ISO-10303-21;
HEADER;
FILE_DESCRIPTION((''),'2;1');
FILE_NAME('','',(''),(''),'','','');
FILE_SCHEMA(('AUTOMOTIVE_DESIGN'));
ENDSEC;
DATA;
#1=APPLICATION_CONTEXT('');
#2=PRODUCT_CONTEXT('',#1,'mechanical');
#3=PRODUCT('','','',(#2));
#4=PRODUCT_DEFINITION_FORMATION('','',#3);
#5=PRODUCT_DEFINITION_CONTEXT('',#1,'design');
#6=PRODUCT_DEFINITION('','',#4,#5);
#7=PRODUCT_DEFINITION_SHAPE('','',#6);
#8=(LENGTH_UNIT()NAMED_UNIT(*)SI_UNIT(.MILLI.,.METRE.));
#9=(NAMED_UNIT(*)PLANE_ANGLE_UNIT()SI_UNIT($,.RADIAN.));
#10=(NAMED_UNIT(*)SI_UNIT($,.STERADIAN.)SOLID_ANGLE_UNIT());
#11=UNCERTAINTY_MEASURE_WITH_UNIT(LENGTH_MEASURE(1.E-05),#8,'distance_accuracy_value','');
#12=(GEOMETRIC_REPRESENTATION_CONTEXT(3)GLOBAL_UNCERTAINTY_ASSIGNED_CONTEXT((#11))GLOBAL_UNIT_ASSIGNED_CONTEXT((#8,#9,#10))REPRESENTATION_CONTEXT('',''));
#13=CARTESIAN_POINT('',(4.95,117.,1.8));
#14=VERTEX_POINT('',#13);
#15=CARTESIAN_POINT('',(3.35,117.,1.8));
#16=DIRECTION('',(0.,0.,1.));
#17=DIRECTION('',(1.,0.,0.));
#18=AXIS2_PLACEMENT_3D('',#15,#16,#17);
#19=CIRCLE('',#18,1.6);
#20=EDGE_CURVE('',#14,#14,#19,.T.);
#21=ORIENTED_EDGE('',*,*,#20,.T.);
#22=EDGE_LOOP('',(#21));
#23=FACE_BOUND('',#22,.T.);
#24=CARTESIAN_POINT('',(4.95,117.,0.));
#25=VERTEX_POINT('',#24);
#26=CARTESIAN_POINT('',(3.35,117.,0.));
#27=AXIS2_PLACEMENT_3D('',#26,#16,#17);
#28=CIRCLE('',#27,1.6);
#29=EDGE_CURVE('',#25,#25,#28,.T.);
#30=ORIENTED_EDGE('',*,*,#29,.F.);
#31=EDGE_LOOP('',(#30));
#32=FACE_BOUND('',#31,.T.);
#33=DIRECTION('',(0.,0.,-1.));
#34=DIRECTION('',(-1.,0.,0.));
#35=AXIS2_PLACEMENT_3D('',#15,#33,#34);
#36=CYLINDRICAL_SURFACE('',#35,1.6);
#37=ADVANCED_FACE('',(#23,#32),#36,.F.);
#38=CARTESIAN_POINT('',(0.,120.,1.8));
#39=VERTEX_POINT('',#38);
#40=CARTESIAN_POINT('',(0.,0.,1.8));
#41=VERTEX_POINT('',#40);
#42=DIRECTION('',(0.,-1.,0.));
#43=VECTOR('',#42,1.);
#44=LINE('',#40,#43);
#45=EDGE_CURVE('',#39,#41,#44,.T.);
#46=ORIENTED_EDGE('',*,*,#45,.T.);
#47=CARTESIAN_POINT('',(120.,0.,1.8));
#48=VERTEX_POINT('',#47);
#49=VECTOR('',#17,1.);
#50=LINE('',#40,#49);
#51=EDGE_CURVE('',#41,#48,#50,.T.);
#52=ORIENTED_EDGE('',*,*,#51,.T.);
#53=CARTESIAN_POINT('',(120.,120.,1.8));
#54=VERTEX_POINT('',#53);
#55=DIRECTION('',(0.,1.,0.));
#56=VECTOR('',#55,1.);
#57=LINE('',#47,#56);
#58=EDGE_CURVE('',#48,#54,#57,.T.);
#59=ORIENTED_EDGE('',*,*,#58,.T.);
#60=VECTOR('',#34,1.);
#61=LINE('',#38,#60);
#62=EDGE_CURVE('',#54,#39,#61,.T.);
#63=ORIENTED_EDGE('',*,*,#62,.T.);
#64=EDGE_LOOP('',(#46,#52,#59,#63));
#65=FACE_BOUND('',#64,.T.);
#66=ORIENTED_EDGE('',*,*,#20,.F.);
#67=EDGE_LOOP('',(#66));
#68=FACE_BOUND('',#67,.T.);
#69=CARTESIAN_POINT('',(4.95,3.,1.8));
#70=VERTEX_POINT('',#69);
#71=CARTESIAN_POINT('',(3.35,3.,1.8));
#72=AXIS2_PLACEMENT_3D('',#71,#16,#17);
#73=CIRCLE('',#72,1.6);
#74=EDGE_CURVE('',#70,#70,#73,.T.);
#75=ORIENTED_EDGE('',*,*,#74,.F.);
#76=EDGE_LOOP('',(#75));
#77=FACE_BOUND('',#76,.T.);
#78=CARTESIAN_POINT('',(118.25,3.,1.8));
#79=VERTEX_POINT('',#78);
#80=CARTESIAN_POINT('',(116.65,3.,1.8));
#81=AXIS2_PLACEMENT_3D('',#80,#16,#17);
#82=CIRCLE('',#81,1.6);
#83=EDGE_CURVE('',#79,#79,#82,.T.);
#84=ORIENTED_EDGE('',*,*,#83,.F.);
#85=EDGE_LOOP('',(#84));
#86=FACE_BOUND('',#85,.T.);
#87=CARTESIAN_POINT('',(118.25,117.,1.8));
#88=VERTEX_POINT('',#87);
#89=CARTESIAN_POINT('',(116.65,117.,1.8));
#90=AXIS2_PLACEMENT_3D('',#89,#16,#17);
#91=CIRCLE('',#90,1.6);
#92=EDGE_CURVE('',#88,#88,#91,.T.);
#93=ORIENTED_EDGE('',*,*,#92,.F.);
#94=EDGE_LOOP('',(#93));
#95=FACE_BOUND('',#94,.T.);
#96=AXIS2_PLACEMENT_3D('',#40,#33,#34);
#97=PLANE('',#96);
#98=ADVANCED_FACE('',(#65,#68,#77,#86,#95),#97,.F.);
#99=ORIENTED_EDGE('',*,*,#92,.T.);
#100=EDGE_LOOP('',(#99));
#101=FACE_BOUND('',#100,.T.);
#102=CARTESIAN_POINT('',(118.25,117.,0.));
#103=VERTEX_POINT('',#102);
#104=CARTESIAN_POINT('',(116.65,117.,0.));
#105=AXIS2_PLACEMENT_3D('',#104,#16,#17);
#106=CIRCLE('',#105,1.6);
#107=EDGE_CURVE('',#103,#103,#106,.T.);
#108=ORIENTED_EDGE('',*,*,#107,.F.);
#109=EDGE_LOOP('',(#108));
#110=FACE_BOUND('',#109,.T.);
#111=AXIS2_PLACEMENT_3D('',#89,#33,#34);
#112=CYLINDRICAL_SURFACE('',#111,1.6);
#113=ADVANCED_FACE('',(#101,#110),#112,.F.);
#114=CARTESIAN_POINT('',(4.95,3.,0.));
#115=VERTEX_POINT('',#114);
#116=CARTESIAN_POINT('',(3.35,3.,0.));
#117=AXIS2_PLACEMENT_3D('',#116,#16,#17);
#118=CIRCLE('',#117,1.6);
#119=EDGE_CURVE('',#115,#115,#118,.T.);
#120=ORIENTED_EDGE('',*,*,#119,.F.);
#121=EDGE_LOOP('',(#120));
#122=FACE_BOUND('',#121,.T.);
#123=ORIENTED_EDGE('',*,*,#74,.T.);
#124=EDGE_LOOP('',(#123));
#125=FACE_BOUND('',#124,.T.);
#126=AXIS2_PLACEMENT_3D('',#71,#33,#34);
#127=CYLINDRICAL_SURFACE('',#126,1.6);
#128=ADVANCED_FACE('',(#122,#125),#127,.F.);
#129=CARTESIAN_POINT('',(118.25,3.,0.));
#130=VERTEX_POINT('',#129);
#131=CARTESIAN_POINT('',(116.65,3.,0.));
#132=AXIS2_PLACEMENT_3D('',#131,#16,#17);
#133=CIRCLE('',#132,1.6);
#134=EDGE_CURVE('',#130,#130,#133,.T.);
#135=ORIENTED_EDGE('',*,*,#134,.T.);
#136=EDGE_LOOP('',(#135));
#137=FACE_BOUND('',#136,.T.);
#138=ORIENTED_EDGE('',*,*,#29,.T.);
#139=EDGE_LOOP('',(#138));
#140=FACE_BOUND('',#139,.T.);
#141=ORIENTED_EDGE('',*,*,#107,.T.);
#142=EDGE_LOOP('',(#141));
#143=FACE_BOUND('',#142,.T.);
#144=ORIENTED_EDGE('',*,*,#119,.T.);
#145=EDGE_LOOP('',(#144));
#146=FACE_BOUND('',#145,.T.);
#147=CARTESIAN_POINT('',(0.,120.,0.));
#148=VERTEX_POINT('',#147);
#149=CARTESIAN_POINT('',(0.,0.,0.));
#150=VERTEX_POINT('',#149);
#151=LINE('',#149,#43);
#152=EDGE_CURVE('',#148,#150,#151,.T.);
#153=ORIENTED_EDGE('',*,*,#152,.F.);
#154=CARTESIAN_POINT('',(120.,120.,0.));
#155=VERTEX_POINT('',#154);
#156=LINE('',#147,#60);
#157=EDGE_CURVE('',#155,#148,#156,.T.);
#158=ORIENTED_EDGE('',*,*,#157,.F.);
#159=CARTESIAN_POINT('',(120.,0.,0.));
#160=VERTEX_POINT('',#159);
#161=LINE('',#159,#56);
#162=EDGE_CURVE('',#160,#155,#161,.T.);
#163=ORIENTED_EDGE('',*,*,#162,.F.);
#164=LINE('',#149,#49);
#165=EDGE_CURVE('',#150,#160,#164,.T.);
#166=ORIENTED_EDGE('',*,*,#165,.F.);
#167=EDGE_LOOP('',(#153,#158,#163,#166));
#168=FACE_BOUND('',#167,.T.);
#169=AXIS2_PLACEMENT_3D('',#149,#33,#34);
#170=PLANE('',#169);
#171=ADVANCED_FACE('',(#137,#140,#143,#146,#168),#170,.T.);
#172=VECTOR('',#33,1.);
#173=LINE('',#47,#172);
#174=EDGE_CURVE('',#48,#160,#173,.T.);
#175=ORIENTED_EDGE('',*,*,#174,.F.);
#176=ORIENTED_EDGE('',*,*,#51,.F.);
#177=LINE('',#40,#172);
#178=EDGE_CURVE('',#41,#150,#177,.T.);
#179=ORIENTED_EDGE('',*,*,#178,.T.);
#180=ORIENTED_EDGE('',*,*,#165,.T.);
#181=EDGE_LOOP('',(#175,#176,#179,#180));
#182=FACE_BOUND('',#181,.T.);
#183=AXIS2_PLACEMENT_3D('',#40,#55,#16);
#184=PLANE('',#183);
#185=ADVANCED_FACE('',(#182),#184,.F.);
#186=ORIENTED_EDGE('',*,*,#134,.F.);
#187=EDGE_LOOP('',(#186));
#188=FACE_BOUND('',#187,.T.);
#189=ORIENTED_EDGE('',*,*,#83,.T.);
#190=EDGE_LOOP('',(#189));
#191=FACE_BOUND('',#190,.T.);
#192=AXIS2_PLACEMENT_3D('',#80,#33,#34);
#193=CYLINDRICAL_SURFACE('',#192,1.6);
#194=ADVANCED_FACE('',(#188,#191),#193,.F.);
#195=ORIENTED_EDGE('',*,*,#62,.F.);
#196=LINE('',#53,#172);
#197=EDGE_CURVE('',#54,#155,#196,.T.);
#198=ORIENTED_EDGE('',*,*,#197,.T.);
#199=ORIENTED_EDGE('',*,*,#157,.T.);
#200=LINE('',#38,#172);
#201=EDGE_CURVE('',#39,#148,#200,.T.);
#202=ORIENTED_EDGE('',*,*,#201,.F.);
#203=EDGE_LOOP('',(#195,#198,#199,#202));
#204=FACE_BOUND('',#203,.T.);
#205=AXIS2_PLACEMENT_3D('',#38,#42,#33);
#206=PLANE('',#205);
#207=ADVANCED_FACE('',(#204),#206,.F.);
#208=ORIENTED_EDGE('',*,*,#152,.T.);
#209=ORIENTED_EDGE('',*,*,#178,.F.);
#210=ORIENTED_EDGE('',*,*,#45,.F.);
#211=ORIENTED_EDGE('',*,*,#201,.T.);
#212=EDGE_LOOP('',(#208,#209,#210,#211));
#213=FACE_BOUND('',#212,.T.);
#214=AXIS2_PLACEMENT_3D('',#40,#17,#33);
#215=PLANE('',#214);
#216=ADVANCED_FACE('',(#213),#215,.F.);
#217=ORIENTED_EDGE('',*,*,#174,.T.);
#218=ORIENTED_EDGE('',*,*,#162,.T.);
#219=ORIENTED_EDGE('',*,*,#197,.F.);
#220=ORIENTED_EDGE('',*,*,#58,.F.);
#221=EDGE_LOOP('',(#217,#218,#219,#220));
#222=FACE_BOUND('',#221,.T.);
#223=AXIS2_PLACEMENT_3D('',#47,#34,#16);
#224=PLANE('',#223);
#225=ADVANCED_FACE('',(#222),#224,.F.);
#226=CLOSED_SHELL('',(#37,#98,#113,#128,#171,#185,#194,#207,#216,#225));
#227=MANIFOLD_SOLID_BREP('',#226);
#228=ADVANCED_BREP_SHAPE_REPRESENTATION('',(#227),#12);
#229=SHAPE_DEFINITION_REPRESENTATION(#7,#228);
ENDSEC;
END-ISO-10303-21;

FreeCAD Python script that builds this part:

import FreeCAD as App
import Part
import Sketcher
from FreeCAD import Vector


def add_polygon(sketch, points):
    """Adds a closed chain of lines whose ends are joined by coincident constraints."""
    first, n = sketch.GeometryCount, len(points)
    for a, b in zip(points, points[1:] + points[:1]):
        sketch.addGeometry(Part.LineSegment(App.Vector(*a, 0), App.Vector(*b, 0)), False)
    for i in range(n):
        sketch.addConstraint(Sketcher.Constraint("Coincident", first + i, 2, first + (i + 1) % n, 1))

doc = App.newDocument("Part")
body = doc.addObject("PartDesign::Body", "Body")

# Sketch on XY plane
sketch1 = body.newObject("Sketcher::SketchObject", "Sketch")
sketch1.AttachmentSupport = (doc.getObject("XY_Plane"), [""])
sketch1.MapMode = "FlatFace"
add_polygon(sketch1, [(0, 120), (0, 0), (120, 0), (120, 120)])  # lines 0-3
sketch1.addGeometry(Part.Circle(Vector(3.35, 3, 0), Vector(0, 0, 1), 1.6), False)  # 4
sketch1.addGeometry(Part.Circle(Vector(116.65, 3, 0), Vector(0, 0, 1), 1.6), False)  # 5
sketch1.addGeometry(Part.Circle(Vector(3.35, 117, 0), Vector(0, 0, 1), 1.6), False)  # 6
sketch1.addGeometry(Part.Circle(Vector(116.65, 117, 0), Vector(0, 0, 1), 1.6), False)  # 7
sketch1.addConstraint([
    Sketcher.Constraint("Vertical", 0),
    Sketcher.Constraint("Horizontal", 1),
    Sketcher.Constraint("Vertical", 2),
    Sketcher.Constraint("Horizontal", 3),
    Sketcher.Constraint("Coincident", 0, 2, -1, 1),
    Sketcher.Constraint("Equal", 4, 5),
    Sketcher.Constraint("Equal", 5, 6),
    Sketcher.Constraint("Equal", 6, 7),
    Sketcher.Constraint("Horizontal", 4, 3, 5, 3),
    Sketcher.Constraint("Horizontal", 6, 3, 7, 3),
    Sketcher.Constraint("Vertical", 4, 3, 6, 3),
    Sketcher.Constraint("Vertical", 5, 3, 7, 3),
    Sketcher.Constraint("Equal", 3, 0),
    Sketcher.Constraint("Diameter", 4, 3.2),
    Sketcher.Constraint("DistanceX", 1, 1, 1, 2, 120.0),
    Sketcher.Constraint("DistanceY", -1, 1, 4, 3, 3.0),
    Sketcher.Constraint("DistanceY", -1, 1, 6, 3, 117.0),
    Sketcher.Constraint("DistanceX", 4, 3, 5, 3, 113.3),
    Sketcher.Constraint("DistanceX", -1, 1, 4, 3, 3.35),
])
pad1 = body.newObject("PartDesign::Pad", "Pad")
pad1.Profile = sketch1
pad1.Length = 1.8

doc.recompute()
